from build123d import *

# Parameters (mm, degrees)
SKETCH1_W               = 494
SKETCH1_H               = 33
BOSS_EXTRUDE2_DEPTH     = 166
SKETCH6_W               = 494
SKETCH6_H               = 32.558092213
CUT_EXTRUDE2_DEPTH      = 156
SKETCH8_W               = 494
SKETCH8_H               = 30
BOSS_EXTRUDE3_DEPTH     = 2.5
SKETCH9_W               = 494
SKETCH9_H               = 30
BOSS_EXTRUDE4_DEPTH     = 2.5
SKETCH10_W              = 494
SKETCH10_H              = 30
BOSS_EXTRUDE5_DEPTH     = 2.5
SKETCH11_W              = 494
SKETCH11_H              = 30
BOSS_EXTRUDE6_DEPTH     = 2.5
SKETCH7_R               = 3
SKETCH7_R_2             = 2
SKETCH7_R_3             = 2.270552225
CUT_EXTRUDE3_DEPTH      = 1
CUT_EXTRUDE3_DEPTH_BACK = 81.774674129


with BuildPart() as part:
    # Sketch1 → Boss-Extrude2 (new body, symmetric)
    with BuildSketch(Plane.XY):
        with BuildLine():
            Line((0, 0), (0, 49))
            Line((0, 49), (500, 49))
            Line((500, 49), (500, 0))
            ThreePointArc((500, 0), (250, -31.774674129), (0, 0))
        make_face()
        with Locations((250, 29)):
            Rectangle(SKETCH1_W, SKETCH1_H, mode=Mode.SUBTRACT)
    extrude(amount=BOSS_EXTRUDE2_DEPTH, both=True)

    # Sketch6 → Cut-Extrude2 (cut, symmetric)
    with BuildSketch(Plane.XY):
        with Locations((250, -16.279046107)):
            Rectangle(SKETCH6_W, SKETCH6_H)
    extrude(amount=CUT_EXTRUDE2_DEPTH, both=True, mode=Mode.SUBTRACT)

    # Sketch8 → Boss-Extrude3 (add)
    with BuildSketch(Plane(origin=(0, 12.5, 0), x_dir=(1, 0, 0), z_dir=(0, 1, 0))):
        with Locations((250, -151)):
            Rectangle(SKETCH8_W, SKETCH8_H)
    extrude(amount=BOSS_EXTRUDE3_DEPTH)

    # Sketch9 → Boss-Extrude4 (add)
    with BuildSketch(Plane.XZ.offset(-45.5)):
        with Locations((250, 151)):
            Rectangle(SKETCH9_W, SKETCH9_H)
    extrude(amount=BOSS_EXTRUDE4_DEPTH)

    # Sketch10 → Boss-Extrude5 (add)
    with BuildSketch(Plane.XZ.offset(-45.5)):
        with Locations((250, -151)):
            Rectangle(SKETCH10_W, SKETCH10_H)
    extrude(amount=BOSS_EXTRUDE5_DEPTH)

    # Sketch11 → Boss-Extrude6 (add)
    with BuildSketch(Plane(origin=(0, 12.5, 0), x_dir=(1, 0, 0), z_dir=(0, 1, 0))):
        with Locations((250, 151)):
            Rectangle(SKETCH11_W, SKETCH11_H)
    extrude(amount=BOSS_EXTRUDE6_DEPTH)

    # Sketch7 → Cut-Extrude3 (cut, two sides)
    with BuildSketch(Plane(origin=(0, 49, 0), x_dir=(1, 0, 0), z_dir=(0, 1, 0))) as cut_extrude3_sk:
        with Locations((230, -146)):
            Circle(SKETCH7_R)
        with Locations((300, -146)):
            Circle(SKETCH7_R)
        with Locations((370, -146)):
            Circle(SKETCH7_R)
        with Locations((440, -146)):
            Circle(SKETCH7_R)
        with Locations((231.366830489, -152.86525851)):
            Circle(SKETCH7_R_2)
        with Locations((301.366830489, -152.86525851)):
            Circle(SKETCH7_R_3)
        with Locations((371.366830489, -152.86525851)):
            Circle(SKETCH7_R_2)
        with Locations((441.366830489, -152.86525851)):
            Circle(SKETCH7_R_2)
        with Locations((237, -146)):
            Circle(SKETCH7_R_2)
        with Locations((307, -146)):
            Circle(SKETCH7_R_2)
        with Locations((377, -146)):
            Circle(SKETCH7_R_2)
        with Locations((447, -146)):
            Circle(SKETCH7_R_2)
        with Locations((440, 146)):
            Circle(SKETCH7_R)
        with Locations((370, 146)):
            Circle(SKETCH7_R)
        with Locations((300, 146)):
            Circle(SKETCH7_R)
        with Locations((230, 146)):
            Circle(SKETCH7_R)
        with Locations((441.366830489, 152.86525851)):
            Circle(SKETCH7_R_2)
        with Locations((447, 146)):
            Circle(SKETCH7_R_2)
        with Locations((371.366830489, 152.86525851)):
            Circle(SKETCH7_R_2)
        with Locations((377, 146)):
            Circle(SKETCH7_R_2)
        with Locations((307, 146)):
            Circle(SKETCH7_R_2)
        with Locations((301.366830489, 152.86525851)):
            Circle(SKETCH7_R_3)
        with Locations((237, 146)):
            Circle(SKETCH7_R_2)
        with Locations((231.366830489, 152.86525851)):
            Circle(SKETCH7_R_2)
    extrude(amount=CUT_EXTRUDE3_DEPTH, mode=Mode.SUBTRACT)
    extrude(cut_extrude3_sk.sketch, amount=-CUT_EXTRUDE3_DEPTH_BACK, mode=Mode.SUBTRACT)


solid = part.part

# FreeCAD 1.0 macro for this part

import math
import FreeCAD as App
import Part
import Sketcher

V = App.Vector


def add_polygon(sketch, points):
    """Adds a closed chain of lines whose ends are joined by coincident constraints."""
    first, n = sketch.GeometryCount, len(points)
    for a, b in zip(points, points[1:] + points[:1]):
        sketch.addGeometry(Part.LineSegment(App.Vector(*a, 0), App.Vector(*b, 0)), False)
    for i in range(n):
        sketch.addConstraint(Sketcher.Constraint("Coincident", first + i, 2, first + (i + 1) % n, 1))

doc = App.newDocument("Part")
params = doc.addObject("Spreadsheet::Sheet", "Params")
for row, (alias, value) in enumerate([
    ("sketch1_width", "500 mm"),
    ("sketch1_width2", "494 mm"),
    ("sketch1_height", "49 mm"),
    ("sketch1_height2", "33 mm"),
    ("pad1_length", "332 mm"),
    ("sketch2_width", "494 mm"),
    ("pocket1_length", "312 mm"),
    ("sketch3_width", "494 mm"),
    ("sketch3_height", "30 mm"),
    ("pad2_length", "2.5 mm"),
    ("sketch4_width", "494 mm"),
    ("sketch4_height", "30 mm"),
    ("pad3_length", "2.5 mm"),
    ("sketch5_width", "494 mm"),
    ("sketch5_height", "30 mm"),
    ("pad4_length", "2.5 mm"),
    ("sketch6_width", "494 mm"),
    ("sketch6_height", "30 mm"),
    ("pad5_length", "2.5 mm"),
    ("sketch7_diameter", "6 mm"),
    ("sketch7_diameter2", "4 mm"),
], start=1):
    params.set(f"A{row}", alias)
    params.set(f"B{row}", "=" + value)
    params.setAlias(f"B{row}", alias)

body = doc.addObject("PartDesign::Body", "Body")

sketch1 = body.newObject("Sketcher::SketchObject", "Sketch")
sketch1.AttachmentSupport = (doc.getObject("XY_Plane"), [""])
sketch1.MapMode = "FlatFace"
sketch1.addGeometry(Part.LineSegment(V(0, 49, 0), V(0, 0, 0)), False)
sketch1.addGeometry(Part.ArcOfCircle(Part.Circle(V(250, 968, 0), V(0, 0, 1), 999), math.radians(-104), math.radians(-76)), False)
sketch1.addGeometry(Part.LineSegment(V(500, 0, 0), V(500, 49, 0)), False)
sketch1.addGeometry(Part.LineSegment(V(500, 49, 0), V(0, 49, 0)), False)
add_polygon(sketch1, [(3, 12), (3, 46), (497, 46), (497, 12)])
sketch1.addConstraint([
    Sketcher.Constraint("Coincident", 0, 2, 1, 1),
    Sketcher.Constraint("Coincident", 1, 2, 2, 1),
    Sketcher.Constraint("Coincident", 2, 2, 3, 1),
    Sketcher.Constraint("Coincident", 3, 2, 0, 1),
    Sketcher.Constraint("Vertical", 0),
    Sketcher.Constraint("Vertical", 2),
    Sketcher.Constraint("Horizontal", 3),
    Sketcher.Constraint("Vertical", 4),
    Sketcher.Constraint("Horizontal", 5),
    Sketcher.Constraint("Vertical", 6),
    Sketcher.Constraint("Horizontal", 7),
    Sketcher.Constraint("Coincident", 0, 2, -1, 1),
    Sketcher.Constraint("Equal", 0, 2),
    Sketcher.Constraint("DistanceX", 3, 2, 3, 1, 500.0),
    Sketcher.Constraint("DistanceX", 5, 1, 5, 2, 494.0),
    Sketcher.Constraint("DistanceY", 0, 2, 0, 1, 49.0),
    Sketcher.Constraint("DistanceY", 4, 1, 4, 2, 33.0),
    Sketcher.Constraint("DistanceX", -1, 1, 4, 2, 3.0),
    Sketcher.Constraint("Radius", 1, 999.375),
    Sketcher.Constraint("DistanceY", -1, 1, 4, 2, 45.5),
])
sketch1.setExpression("Constraints[17]", "Params.sketch1_width")
sketch1.setExpression("Constraints[18]", "Params.sketch1_width2")
sketch1.setExpression("Constraints[19]", "Params.sketch1_height")
sketch1.setExpression("Constraints[20]", "Params.sketch1_height2")
pad1 = body.newObject("PartDesign::Pad", "Pad")
pad1.Profile = sketch1
pad1.setExpression("Length", "Params.pad1_length")
pad1.Midplane = True

sketch2 = body.newObject("Sketcher::SketchObject", "Sketch001")
sketch2.AttachmentSupport = (doc.getObject("XY_Plane"), [""])
sketch2.MapMode = "FlatFace"
add_polygon(sketch2, [(3, 0), (3, -33), (497, -33), (497, 0)])
sketch2.addConstraint([
    Sketcher.Constraint("Vertical", 0),
    Sketcher.Constraint("Horizontal", 1),
    Sketcher.Constraint("Vertical", 2),
    Sketcher.Constraint("Horizontal", 3),
    Sketcher.Constraint("PointOnObject", 2, 2, -1),
    Sketcher.Constraint("DistanceX", 1, 1, 1, 2, 494.0),
    Sketcher.Constraint("DistanceX", -1, 1, 0, 2, 3.0),
    Sketcher.Constraint("DistanceY", 0, 2, 0, 1, 32.558092),
])
sketch2.setExpression("Constraints[9]", "Params.sketch2_width")
pocket1 = body.newObject("PartDesign::Pocket", "Pocket")
pocket1.Profile = sketch2
pocket1.setExpression("Length", "Params.pocket1_length")
pocket1.Midplane = True

sketch3 = body.newObject("Sketcher::SketchObject", "Sketch002")
sketch3.AttachmentSupport = (doc.getObject("XZ_Plane"), [""])
sketch3.MapMode = "FlatFace"
sketch3.AttachmentOffset = App.Placement(V(0, 0, -12.5), App.Rotation())
add_polygon(sketch3, [(3, 136), (3, 166), (497, 166), (497, 136)])
sketch3.addConstraint([
    Sketcher.Constraint("Vertical", 0),
    Sketcher.Constraint("Horizontal", 1),
    Sketcher.Constraint("Vertical", 2),
    Sketcher.Constraint("Horizontal", 3),
    Sketcher.Constraint("DistanceX", 1, 1, 1, 2, 494.0),
    Sketcher.Constraint("DistanceY", 0, 1, 0, 2, 30.0),
    Sketcher.Constraint("DistanceX", -1, 1, 0, 2, 3.0),
    Sketcher.Constraint("DistanceY", -1, 1, 0, 2, 166.0),
])
sketch3.setExpression("Constraints[8]", "Params.sketch3_width")
sketch3.setExpression("Constraints[9]", "Params.sketch3_height")
pad2 = body.newObject("PartDesign::Pad", "Pad001")
pad2.Profile = sketch3
pad2.setExpression("Length", "Params.pad2_length")
pad2.Reversed = True

sketch4 = body.newObject("Sketcher::SketchObject", "Sketch003")
sketch4.AttachmentSupport = (doc.getObject("XZ_Plane"), [""])
sketch4.MapMode = "FlatFace"
sketch4.AttachmentOffset = App.Placement(V(0, 0, -45.5), App.Rotation())
add_polygon(sketch4, [(3, 166), (3, 136), (497, 136), (497, 166)])
sketch4.addConstraint([
    Sketcher.Constraint("Vertical", 0),
    Sketcher.Constraint("Horizontal", 1),
    Sketcher.Constraint("Vertical", 2),
    Sketcher.Constraint("Horizontal", 3),
    Sketcher.Constraint("DistanceX", 1, 1, 1, 2, 494.0),
    Sketcher.Constraint("DistanceY", 0, 2, 0, 1, 30.0),
    Sketcher.Constraint("DistanceX", -1, 1, 0, 2, 3.0),
    Sketcher.Constraint("DistanceY", -1, 1, 0, 2, 136.0),
])
sketch4.setExpression("Constraints[8]", "Params.sketch4_width")
sketch4.setExpression("Constraints[9]", "Params.sketch4_height")
pad3 = body.newObject("PartDesign::Pad", "Pad002")
pad3.Profile = sketch4
pad3.setExpression("Length", "Params.pad3_length")

sketch5 = body.newObject("Sketcher::SketchObject", "Sketch004")
sketch5.AttachmentSupport = (doc.getObject("XZ_Plane"), [""])
sketch5.MapMode = "FlatFace"
sketch5.AttachmentOffset = App.Placement(V(0, 0, -45.5), App.Rotation())
add_polygon(sketch5, [(3, -136), (3, -166), (497, -166), (497, -136)])
sketch5.addConstraint([
    Sketcher.Constraint("Vertical", 0),
    Sketcher.Constraint("Horizontal", 1),
    Sketcher.Constraint("Vertical", 2),
    Sketcher.Constraint("Horizontal", 3),
    Sketcher.Constraint("DistanceX", 1, 1, 1, 2, 494.0),
    Sketcher.Constraint("DistanceY", 0, 2, 0, 1, 30.0),
    Sketcher.Constraint("DistanceX", -1, 1, 0, 2, 3.0),
    Sketcher.Constraint("DistanceY", 0, 2, -1, 1, 166.0),
])
sketch5.setExpression("Constraints[8]", "Params.sketch5_width")
sketch5.setExpression("Constraints[9]", "Params.sketch5_height")
pad4 = body.newObject("PartDesign::Pad", "Pad003")
pad4.Profile = sketch5
pad4.setExpression("Length", "Params.pad4_length")

sketch6 = body.newObject("Sketcher::SketchObject", "Sketch005")
sketch6.AttachmentSupport = (doc.getObject("XZ_Plane"), [""])
sketch6.MapMode = "FlatFace"
sketch6.AttachmentOffset = App.Placement(V(0, 0, -12.5), App.Rotation())
add_polygon(sketch6, [(3, -166), (3, -136), (497, -136), (497, -166)])
sketch6.addConstraint([
    Sketcher.Constraint("Vertical", 0),
    Sketcher.Constraint("Horizontal", 1),
    Sketcher.Constraint("Vertical", 2),
    Sketcher.Constraint("Horizontal", 3),
    Sketcher.Constraint("DistanceX", 1, 1, 1, 2, 494.0),
    Sketcher.Constraint("DistanceY", 0, 1, 0, 2, 30.0),
    Sketcher.Constraint("DistanceX", -1, 1, 0, 2, 3.0),
    Sketcher.Constraint("DistanceY", 0, 2, -1, 1, 136.0),
])
sketch6.setExpression("Constraints[8]", "Params.sketch6_width")
sketch6.setExpression("Constraints[9]", "Params.sketch6_height")
pad5 = body.newObject("PartDesign::Pad", "Pad004")
pad5.Profile = sketch6
pad5.setExpression("Length", "Params.pad5_length")
pad5.Reversed = True

sketch7 = body.newObject("Sketcher::SketchObject", "Sketch006")
sketch7.AttachmentSupport = (doc.getObject("XZ_Plane"), [""])
sketch7.MapMode = "FlatFace"
sketch7.AttachmentOffset = App.Placement(V(0, 0, -49), App.Rotation())
sketch7.addGeometry([
    Part.Circle(V(230, 146, 0), V(0, 0, 1), 3),
    Part.Circle(V(300, 146, 0), V(0, 0, 1), 3),
    Part.Circle(V(370, 146, 0), V(0, 0, 1), 3),
    Part.Circle(V(440, 146, 0), V(0, 0, 1), 3),
    Part.Circle(V(231.4, 152.9, 0), V(0, 0, 1), 2),
    Part.Circle(V(301.4, 152.9, 0), V(0, 0, 1), 2.3),
    Part.Circle(V(371.4, 152.9, 0), V(0, 0, 1), 2),
    Part.Circle(V(441.4, 152.9, 0), V(0, 0, 1), 2),
    Part.Circle(V(237, 146, 0), V(0, 0, 1), 2),
    Part.Circle(V(307, 146, 0), V(0, 0, 1), 2),
    Part.Circle(V(377, 146, 0), V(0, 0, 1), 2),
    Part.Circle(V(447, 146, 0), V(0, 0, 1), 2),
    Part.Circle(V(440, -146, 0), V(0, 0, 1), 3),
    Part.Circle(V(370, -146, 0), V(0, 0, 1), 3),
    Part.Circle(V(300, -146, 0), V(0, 0, 1), 3),
    Part.Circle(V(230, -146, 0), V(0, 0, 1), 3),
    Part.Circle(V(441.4, -152.9, 0), V(0, 0, 1), 2),
    Part.Circle(V(447, -146, 0), V(0, 0, 1), 2),
    Part.Circle(V(371.4, -152.9, 0), V(0, 0, 1), 2),
    Part.Circle(V(377, -146, 0), V(0, 0, 1), 2),
    Part.Circle(V(307, -146, 0), V(0, 0, 1), 2),
    Part.Circle(V(301.4, -152.9, 0), V(0, 0, 1), 2.3),
    Part.Circle(V(237, -146, 0), V(0, 0, 1), 2),
    Part.Circle(V(231.4, -152.9, 0), V(0, 0, 1), 2),
], False)
sketch7.addConstraint([
    Sketcher.Constraint("Equal", 0, 1),
    Sketcher.Constraint("Equal", 1, 2),
    Sketcher.Constraint("Equal", 2, 3),
    Sketcher.Constraint("Equal", 4, 6),
    Sketcher.Constraint("Equal", 6, 7),
    Sketcher.Constraint("Equal", 7, 8),
    Sketcher.Constraint("Equal", 8, 9),
    Sketcher.Constraint("Equal", 9, 10),
    Sketcher.Constraint("Equal", 10, 11),
    Sketcher.Constraint("Equal", 3, 12),
    Sketcher.Constraint("Equal", 12, 13),
    Sketcher.Constraint("Equal", 13, 14),
    Sketcher.Constraint("Equal", 14, 15),
    Sketcher.Constraint("Equal", 11, 16),
    Sketcher.Constraint("Equal", 16, 17),
    Sketcher.Constraint("Equal", 17, 18),
    Sketcher.Constraint("Equal", 18, 19),
    Sketcher.Constraint("Equal", 19, 20),
    Sketcher.Constraint("Equal", 5, 21),
    Sketcher.Constraint("Equal", 20, 22),
    Sketcher.Constraint("Equal", 22, 23),
    Sketcher.Constraint("Symmetric", 3, 3, 12, 3, -1),
    Sketcher.Constraint("Symmetric", 2, 3, 13, 3, -1),
    Sketcher.Constraint("Symmetric", 1, 3, 14, 3, -1),
    Sketcher.Constraint("Symmetric", 0, 3, 15, 3, -1),
    Sketcher.Constraint("Symmetric", 7, 3, 16, 3, -1),
    Sketcher.Constraint("Symmetric", 11, 3, 17, 3, -1),
    Sketcher.Constraint("Symmetric", 6, 3, 18, 3, -1),
    Sketcher.Constraint("Symmetric", 10, 3, 19, 3, -1),
    Sketcher.Constraint("Symmetric", 9, 3, 20, 3, -1),
    Sketcher.Constraint("Symmetric", 5, 3, 21, 3, -1),
    Sketcher.Constraint("Symmetric", 8, 3, 22, 3, -1),
    Sketcher.Constraint("Symmetric", 4, 3, 23, 3, -1),
    Sketcher.Constraint("Horizontal", 0, 3, 1, 3),
    Sketcher.Constraint("Horizontal", 1, 3, 2, 3),
    Sketcher.Constraint("Horizontal", 2, 3, 3, 3),
    Sketcher.Constraint("Horizontal", 4, 3, 5, 3),
    Sketcher.Constraint("Horizontal", 5, 3, 6, 3),
    Sketcher.Constraint("Horizontal", 6, 3, 7, 3),
    Sketcher.Constraint("Horizontal", 3, 3, 8, 3),
    Sketcher.Constraint("Horizontal", 8, 3, 9, 3),
    Sketcher.Constraint("Horizontal", 9, 3, 10, 3),
    Sketcher.Constraint("Horizontal", 10, 3, 11, 3),
    Sketcher.Constraint("Diameter", 0, 6.0),
    Sketcher.Constraint("Diameter", 4, 4.0),
    Sketcher.Constraint("DistanceX", -1, 1, 0, 3, 230.0),
    Sketcher.Constraint("DistanceY", -1, 1, 0, 3, 146.0),
    Sketcher.Constraint("DistanceX", -1, 1, 1, 3, 300.0),
    Sketcher.Constraint("DistanceX", -1, 1, 2, 3, 370.0),
    Sketcher.Constraint("DistanceX", -1, 1, 3, 3, 440.0),
    Sketcher.Constraint("DistanceX", -1, 1, 8, 3, 237.0),
    Sketcher.Constraint("DistanceX", -1, 1, 9, 3, 307.0),
    Sketcher.Constraint("DistanceX", -1, 1, 10, 3, 377.0),
    Sketcher.Constraint("DistanceX", -1, 1, 11, 3, 447.0),
    Sketcher.Constraint("DistanceX", 4, 3, 5, 3, 70.0),
    Sketcher.Constraint("DistanceX", 5, 3, 6, 3, 70.0),
    Sketcher.Constraint("DistanceX", 6, 3, 7, 3, 70.0),
    Sketcher.Constraint("Diameter", 5, 4.541104),
    Sketcher.Constraint("DistanceX", -1, 1, 4, 3, 231.36683),
    Sketcher.Constraint("DistanceY", -1, 1, 4, 3, 152.865259),
])
sketch7.setExpression("Constraints[43]", "Params.sketch7_diameter")
sketch7.setExpression("Constraints[44]", "Params.sketch7_diameter2")
pocket2 = body.newObject("PartDesign::Pocket", "Pocket001")
pocket2.Profile = sketch7
pocket2.Type = "ThroughAll"
pocket2.Midplane = True

doc.recompute()
